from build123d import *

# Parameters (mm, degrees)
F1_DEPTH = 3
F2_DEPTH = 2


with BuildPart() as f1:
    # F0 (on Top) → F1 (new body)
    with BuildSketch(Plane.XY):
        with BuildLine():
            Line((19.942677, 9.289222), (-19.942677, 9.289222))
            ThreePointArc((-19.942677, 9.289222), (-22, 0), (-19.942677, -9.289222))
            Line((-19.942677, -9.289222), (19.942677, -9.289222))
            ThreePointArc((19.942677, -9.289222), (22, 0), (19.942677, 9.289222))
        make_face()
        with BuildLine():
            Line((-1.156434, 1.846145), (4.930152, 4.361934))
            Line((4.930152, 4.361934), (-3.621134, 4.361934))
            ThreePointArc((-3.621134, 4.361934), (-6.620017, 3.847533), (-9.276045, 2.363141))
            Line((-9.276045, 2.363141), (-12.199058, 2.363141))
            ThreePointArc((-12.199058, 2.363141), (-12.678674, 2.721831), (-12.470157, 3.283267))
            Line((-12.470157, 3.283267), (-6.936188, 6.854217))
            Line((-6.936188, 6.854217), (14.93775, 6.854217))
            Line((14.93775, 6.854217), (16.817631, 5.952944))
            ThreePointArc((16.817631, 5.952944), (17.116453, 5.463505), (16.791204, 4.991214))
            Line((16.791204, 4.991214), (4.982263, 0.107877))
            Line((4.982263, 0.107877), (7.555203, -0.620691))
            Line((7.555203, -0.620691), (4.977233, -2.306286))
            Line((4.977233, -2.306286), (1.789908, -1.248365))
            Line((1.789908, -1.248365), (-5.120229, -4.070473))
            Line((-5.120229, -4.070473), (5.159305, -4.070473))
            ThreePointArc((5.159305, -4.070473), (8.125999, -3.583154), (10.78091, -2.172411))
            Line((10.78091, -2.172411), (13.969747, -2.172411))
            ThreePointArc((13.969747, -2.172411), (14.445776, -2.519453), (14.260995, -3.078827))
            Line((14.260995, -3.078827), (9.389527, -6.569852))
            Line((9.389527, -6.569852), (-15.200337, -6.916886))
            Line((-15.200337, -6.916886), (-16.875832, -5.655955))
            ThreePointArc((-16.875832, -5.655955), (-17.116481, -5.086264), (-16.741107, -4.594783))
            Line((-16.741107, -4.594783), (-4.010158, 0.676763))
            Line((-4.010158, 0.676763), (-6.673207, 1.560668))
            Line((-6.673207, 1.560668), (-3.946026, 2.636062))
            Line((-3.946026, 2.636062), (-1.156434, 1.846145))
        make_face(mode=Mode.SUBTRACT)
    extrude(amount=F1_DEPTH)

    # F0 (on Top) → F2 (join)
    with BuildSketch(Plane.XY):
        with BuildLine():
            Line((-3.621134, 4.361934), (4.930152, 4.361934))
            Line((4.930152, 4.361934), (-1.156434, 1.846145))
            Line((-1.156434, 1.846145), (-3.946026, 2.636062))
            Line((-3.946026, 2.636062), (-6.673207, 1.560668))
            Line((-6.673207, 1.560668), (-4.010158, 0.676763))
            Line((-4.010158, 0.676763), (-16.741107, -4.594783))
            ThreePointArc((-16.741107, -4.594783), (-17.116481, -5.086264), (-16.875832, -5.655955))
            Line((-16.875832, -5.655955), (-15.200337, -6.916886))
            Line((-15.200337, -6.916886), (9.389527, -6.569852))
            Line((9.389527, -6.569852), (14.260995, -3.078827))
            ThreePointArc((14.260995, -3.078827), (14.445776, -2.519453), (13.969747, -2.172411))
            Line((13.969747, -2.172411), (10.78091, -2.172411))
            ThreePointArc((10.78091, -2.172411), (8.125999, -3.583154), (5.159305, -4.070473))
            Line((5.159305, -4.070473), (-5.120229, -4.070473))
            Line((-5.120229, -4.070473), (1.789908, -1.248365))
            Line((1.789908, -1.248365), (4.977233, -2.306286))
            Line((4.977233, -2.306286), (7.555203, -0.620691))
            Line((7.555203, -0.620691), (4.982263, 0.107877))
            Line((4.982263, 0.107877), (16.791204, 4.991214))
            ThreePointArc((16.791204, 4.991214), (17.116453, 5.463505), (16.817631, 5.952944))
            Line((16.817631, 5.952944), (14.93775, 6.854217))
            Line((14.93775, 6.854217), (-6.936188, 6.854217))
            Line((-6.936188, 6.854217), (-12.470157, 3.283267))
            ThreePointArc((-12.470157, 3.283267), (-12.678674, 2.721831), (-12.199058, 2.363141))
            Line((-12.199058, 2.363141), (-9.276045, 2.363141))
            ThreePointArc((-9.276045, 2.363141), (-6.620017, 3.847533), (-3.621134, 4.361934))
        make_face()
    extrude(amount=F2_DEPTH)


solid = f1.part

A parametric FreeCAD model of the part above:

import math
import FreeCAD as App
import Part
import Sketcher
Q = App.Units.Quantity

doc = App.newDocument("Part")
params = doc.addObject("Spreadsheet::Sheet", "Params")
for row, (alias, value) in enumerate([
    ("sketch1_radius", "0.5 mm"),
    ("sketch1_radius2", "0.5 mm"),
    ("pad1_length", "3 mm"),
    ("sketch2_radius", "0.5 mm"),
    ("pad2_length", "2 mm"),
], start=1):
    params.set(f"A{row}", alias)
    params.set(f"B{row}", "=" + value)
    params.setAlias(f"B{row}", alias)

body = doc.addObject("PartDesign::Body", "Body")

sketch1 = body.newObject("Sketcher::SketchObject", "Sketch")
sketch1.AttachmentSupport = (doc.getObject("XY_Plane"), [""])
sketch1.MapMode = "FlatFace"
sketch1.addGeometry([
    Part.LineSegment(App.Vector(19.942677, 9.289222, 0), App.Vector(-19.942677, 9.289222, 0)),
    Part.ArcOfCircle(Part.Circle(App.Vector(0.000003, 0, 0), App.Vector(0, 0, 1), 22.000003), math.radians(155.024081), math.radians(204.975919)),
    Part.LineSegment(App.Vector(-19.942677, -9.289222, 0), App.Vector(19.942677, -9.289222, 0)),
    Part.ArcOfCircle(Part.Circle(App.Vector(-0.000003, 0, 0), App.Vector(0, 0, 1), 22.000003), math.radians(-24.975919), math.radians(24.975919)),
    Part.LineSegment(App.Vector(-3.946026, 2.636062, 0), App.Vector(-1.156434, 1.846145, 0)),
    Part.LineSegment(App.Vector(-1.156434, 1.846145, 0), App.Vector(4.930152, 4.361934, 0)),
    Part.LineSegment(App.Vector(4.930152, 4.361934, 0), App.Vector(-3.621134, 4.361934, 0)),
    Part.ArcOfCircle(Part.Circle(App.Vector(-3.621133, -4.636797, 0), App.Vector(0, 0, 1), 8.998731), math.radians(90.000005), math.radians(128.93307)),
    Part.LineSegment(App.Vector(-9.276045, 2.363141, 0), App.Vector(-12.199058, 2.363141, 0)),
    Part.ArcOfCircle(Part.Circle(App.Vector(-12.199058, 2.863141, 0), App.Vector(0, 0, 1), 0.5), math.radians(122.833399), math.radians(269.999972)),
    Part.LineSegment(App.Vector(-12.470157, 3.283267, 0), App.Vector(-6.936188, 6.854217, 0)),
    Part.LineSegment(App.Vector(-6.936188, 6.854217, 0), App.Vector(14.93775, 6.854217, 0)),
    Part.LineSegment(App.Vector(14.93775, 6.854217, 0), App.Vector(16.817631, 5.952944, 0)),
    Part.ArcOfCircle(Part.Circle(App.Vector(16.589915, 5.477973, 0), App.Vector(0, 0, 1), 0.526737), math.radians(-67.533458), math.radians(64.385434)),
    Part.LineSegment(App.Vector(16.791204, 4.991214, 0), App.Vector(4.982263, 0.107877, 0)),
    Part.LineSegment(App.Vector(4.982263, 0.107877, 0), App.Vector(7.555203, -0.620691, 0)),
    Part.LineSegment(App.Vector(7.555203, -0.620691, 0), App.Vector(4.977233, -2.306286, 0)),
    Part.LineSegment(App.Vector(4.977233, -2.306286, 0), App.Vector(1.789908, -1.248365, 0)),
    Part.LineSegment(App.Vector(1.789908, -1.248365, 0), App.Vector(-5.120229, -4.070473, 0)),
    Part.LineSegment(App.Vector(-5.120229, -4.070473, 0), App.Vector(5.159305, -4.070473, 0)),
    Part.ArcOfCircle(Part.Circle(App.Vector(5.159306, 5.203477, 0), App.Vector(0, 0, 1), 9.27395), math.radians(-90.000009), math.radians(-52.686818)),
    Part.LineSegment(App.Vector(10.78091, -2.172411, 0), App.Vector(13.969747, -2.172411, 0)),
    Part.ArcOfCircle(Part.Circle(App.Vector(13.969747, -2.672411, 0), App.Vector(0, 0, 1), 0.5), math.radians(-54.373681), math.radians(90)),
    Part.LineSegment(App.Vector(14.260995, -3.078827, 0), App.Vector(9.389527, -6.569852, 0)),
    Part.LineSegment(App.Vector(9.389527, -6.569852, 0), App.Vector(-15.200337, -6.916886, 0)),
    Part.LineSegment(App.Vector(-15.200337, -6.916886, 0), App.Vector(-16.875832, -5.655955, 0)),
    Part.ArcOfCircle(Part.Circle(App.Vector(-16.505477, -5.163837, 0), App.Vector(0, 0, 1), 0.615909), math.radians(112.493155), math.radians(233.03587)),
    Part.LineSegment(App.Vector(-16.741107, -4.594783, 0), App.Vector(-4.010158, 0.676763, 0)),
    Part.LineSegment(App.Vector(-4.010158, 0.676763, 0), App.Vector(-6.673207, 1.560668, 0)),
    Part.LineSegment(App.Vector(-6.673207, 1.560668, 0), App.Vector(-3.946026, 2.636062, 0)),
], False)
sketch1.addConstraint([
    Sketcher.Constraint("Coincident", 0, 2, 1, 1),
    Sketcher.Constraint("Coincident", 1, 2, 2, 1),
    Sketcher.Constraint("Coincident", 2, 2, 3, 1),
    Sketcher.Constraint("Coincident", 3, 2, 0, 1),
    Sketcher.Constraint("Coincident", 4, 2, 5, 1),
    Sketcher.Constraint("Coincident", 5, 2, 6, 1),
    Sketcher.Constraint("Coincident", 6, 2, 7, 1),
    Sketcher.Constraint("Coincident", 7, 2, 8, 1),
    Sketcher.Constraint("Coincident", 8, 2, 9, 2),
    Sketcher.Constraint("Coincident", 9, 1, 10, 1),
    Sketcher.Constraint("Coincident", 10, 2, 11, 1),
    Sketcher.Constraint("Coincident", 11, 2, 12, 1),
    Sketcher.Constraint("Coincident", 12, 2, 13, 2),
    Sketcher.Constraint("Coincident", 13, 1, 14, 1),
    Sketcher.Constraint("Coincident", 14, 2, 15, 1),
    Sketcher.Constraint("Coincident", 15, 2, 16, 1),
    Sketcher.Constraint("Coincident", 16, 2, 17, 1),
    Sketcher.Constraint("Coincident", 17, 2, 18, 1),
    Sketcher.Constraint("Coincident", 18, 2, 19, 1),
    Sketcher.Constraint("Coincident", 19, 2, 20, 1),
    Sketcher.Constraint("Coincident", 20, 2, 21, 1),
    Sketcher.Constraint("Coincident", 21, 2, 22, 2),
    Sketcher.Constraint("Coincident", 22, 1, 23, 1),
    Sketcher.Constraint("Coincident", 23, 2, 24, 1),
    Sketcher.Constraint("Coincident", 24, 2, 25, 1),
    Sketcher.Constraint("Coincident", 25, 2, 26, 2),
    Sketcher.Constraint("Coincident", 26, 1, 27, 1),
    Sketcher.Constraint("Coincident", 27, 2, 28, 1),
    Sketcher.Constraint("Coincident", 28, 2, 29, 1),
    Sketcher.Constraint("Coincident", 29, 2, 4, 1),
    Sketcher.Constraint("Horizontal", 0),
    Sketcher.Constraint("Horizontal", 2),
    Sketcher.Constraint("Horizontal", 6),
    Sketcher.Constraint("Horizontal", 8),
    Sketcher.Constraint("Horizontal", 11),
    Sketcher.Constraint("Horizontal", 19),
    Sketcher.Constraint("Horizontal", 21),
    Sketcher.Constraint("Coincident", 1, 3, -1, 1),
    Sketcher.Constraint("Coincident", 3, 3, -1, 1),
    Sketcher.Constraint("Radius", 9, Q("0.5 mm")),
    Sketcher.Constraint("Radius", 22, Q("0.5 mm")),
    Sketcher.Constraint("Radius", 7, Q("8.998731 mm")),
    Sketcher.Constraint("Radius", 20, Q("9.27395 mm")),
    Sketcher.Constraint("Radius", 26, Q("0.615909 mm")),
    Sketcher.Constraint("Radius", 1, Q("22.000003 mm")),
    Sketcher.Constraint("Radius", 3, Q("22.000003 mm")),
    Sketcher.Constraint("Radius", 13, Q("0.526737 mm")),
    Sketcher.Constraint("Distance", 18, Q("7.4642 mm")),
    Sketcher.Constraint("Distance", 23, Q("5.993201 mm")),
    Sketcher.Constraint("DistanceX", 0, 2, 26, 3, Q("3.4372 mm")),
    Sketcher.Constraint("DistanceX", 1, 2, 26, 3, Q("3.4372 mm")),
    Sketcher.Constraint("DistanceY", 2, 2, 20, 3, Q("14.492699 mm")),
    Sketcher.Constraint("DistanceX", 7, 3, 4, 2, Q("2.464699 mm")),
    Sketcher.Constraint("DistanceX", 6, 2, 4, 2, Q("2.4647 mm")),
    Sketcher.Constraint("DistanceX", 9, 1, 9, 3, Q("0.271099 mm")),
    Sketcher.Constraint("DistanceX", 9, 1, 8, 2, Q("0.271099 mm")),
    Sketcher.Constraint("DistanceY", 14, 2, 20, 3, Q("5.0956 mm")),
    Sketcher.Constraint("DistanceX", 1, 3, 15, 2, Q("7.5552 mm")),
    Sketcher.Constraint("DistanceY", 27, 2, 29, 2, Q("1.959299 mm")),
    Sketcher.Constraint("Distance", 17, Q("3.358309 mm")),
    Sketcher.Constraint("Distance", 29, Q("2.931551 mm")),
    Sketcher.Constraint("DistanceX", 0, 2, 0, 1, Q("39.885354 mm")),
    Sketcher.Constraint("DistanceX", 6, 2, 6, 1, Q("8.551286 mm")),
    Sketcher.Constraint("DistanceX", 8, 2, 8, 1, Q("2.923013 mm")),
    Sketcher.Constraint("DistanceX", 11, 1, 11, 2, Q("21.873938 mm")),
    Sketcher.Constraint("DistanceX", 19, 1, 19, 2, Q("10.279534 mm")),
    Sketcher.Constraint("DistanceX", 21, 1, 21, 2, Q("3.188837 mm")),
    Sketcher.Constraint("DistanceY", -1, 1, 9, 3, Q("2.863141 mm")),
    Sketcher.Constraint("DistanceY", 22, 3, -1, 1, Q("2.672411 mm")),
    Sketcher.Constraint("DistanceX", -1, 1, 5, 2, Q("4.930152 mm")),
    Sketcher.Constraint("DistanceX", 8, 2, -1, 1, Q("12.199058 mm")),
    Sketcher.Constraint("DistanceX", -1, 1, 11, 2, Q("14.93775 mm")),
    Sketcher.Constraint("DistanceX", -1, 1, 12, 2, Q("16.817631 mm")),
    Sketcher.Constraint("DistanceY", 15, 2, -1, 1, Q("0.620691 mm")),
    Sketcher.Constraint("DistanceX", -1, 1, 17, 2, Q("1.789908 mm")),
    Sketcher.Constraint("DistanceX", 18, 2, -1, 1, Q("5.120229 mm")),
    Sketcher.Constraint("DistanceX", -1, 1, 20, 2, Q("10.78091 mm")),
    Sketcher.Constraint("DistanceX", 25, 2, -1, 1, Q("16.875832 mm")),
    Sketcher.Constraint("DistanceY", -1, 1, 29, 2, Q("2.636062 mm")),
    Sketcher.Constraint("DistanceX", 1, 3, 13, 3, Q("16.589912 mm")),
    Sketcher.Constraint("DistanceY", 7, 3, 13, 3, Q("10.11477 mm")),
    Sketcher.Constraint("DistanceX", 20, 3, 22, 3, Q("8.810441 mm")),
    Sketcher.Constraint("DistanceY", 26, 3, 7, 3, Q("0.52704 mm")),
    Sketcher.Constraint("DistanceY", 7, 3, 4, 2, Q("6.482942 mm")),
    Sketcher.Constraint("DistanceY", 9, 1, 10, 2, Q("3.57095 mm")),
    Sketcher.Constraint("DistanceX", 13, 3, 13, 1, Q("0.201289 mm")),
    Sketcher.Constraint("DistanceX", 5, 2, 14, 2, Q("0.052111 mm")),
    Sketcher.Constraint("DistanceX", 16, 2, 14, 2, Q("0.00503 mm")),
    Sketcher.Constraint("DistanceX", 15, 2, 22, 1, Q("6.705792 mm")),
    Sketcher.Constraint("DistanceY", 23, 2, 20, 2, Q("4.397441 mm")),
    Sketcher.Constraint("DistanceX", 26, 3, 24, 2, Q("1.30514 mm")),
    Sketcher.Constraint("DistanceY", 24, 2, 26, 3, Q("1.753049 mm")),
    Sketcher.Constraint("DistanceX", 26, 1, 26, 3, Q("0.23563 mm")),
    Sketcher.Constraint("DistanceX", 27, 2, 1, 3, Q("4.010161 mm")),
    Sketcher.Constraint("DistanceX", 7, 2, 28, 2, Q("2.602838 mm")),
    Sketcher.Constraint("DistanceY", 28, 2, 10, 2, Q("5.293549 mm")),
])
sketch1.setExpression("Constraints[39]", "Params.sketch1_radius")
sketch1.setExpression("Constraints[40]", "Params.sketch1_radius2")
pad1 = body.newObject("PartDesign::Pad", "Pad")
pad1.Profile = sketch1
pad1.setExpression("Length", "Params.pad1_length")

sketch2 = body.newObject("Sketcher::SketchObject", "Sketch001")
sketch2.AttachmentSupport = (doc.getObject("XY_Plane"), [""])
sketch2.MapMode = "FlatFace"
sketch2.addGeometry([
    Part.LineSegment(App.Vector(-3.621134, 4.361934, 0), App.Vector(4.930152, 4.361934, 0)),
    Part.LineSegment(App.Vector(4.930152, 4.361934, 0), App.Vector(-1.156434, 1.846145, 0)),
    Part.LineSegment(App.Vector(-1.156434, 1.846145, 0), App.Vector(-3.946026, 2.636062, 0)),
    Part.LineSegment(App.Vector(-3.946026, 2.636062, 0), App.Vector(-6.673207, 1.560668, 0)),
    Part.LineSegment(App.Vector(-6.673207, 1.560668, 0), App.Vector(-4.010158, 0.676763, 0)),
    Part.LineSegment(App.Vector(-4.010158, 0.676763, 0), App.Vector(-16.741107, -4.594783, 0)),
    Part.ArcOfCircle(Part.Circle(App.Vector(-16.505477, -5.163837, 0), App.Vector(0, 0, 1), 0.615909), math.radians(112.493155), math.radians(233.03587)),
    Part.LineSegment(App.Vector(-16.875832, -5.655955, 0), App.Vector(-15.200337, -6.916886, 0)),
    Part.LineSegment(App.Vector(-15.200337, -6.916886, 0), App.Vector(9.389527, -6.569852, 0)),
    Part.LineSegment(App.Vector(9.389527, -6.569852, 0), App.Vector(14.260995, -3.078827, 0)),
    Part.ArcOfCircle(Part.Circle(App.Vector(13.969747, -2.672411, 0), App.Vector(0, 0, 1), 0.5), math.radians(-54.373681), math.radians(90)),
    Part.LineSegment(App.Vector(13.969747, -2.172411, 0), App.Vector(10.78091, -2.172411, 0)),
    Part.ArcOfCircle(Part.Circle(App.Vector(5.159306, 5.203477, 0), App.Vector(0, 0, 1), 9.27395), math.radians(-90.000009), math.radians(-52.686818)),
    Part.LineSegment(App.Vector(5.159305, -4.070473, 0), App.Vector(-5.120229, -4.070473, 0)),
    Part.LineSegment(App.Vector(-5.120229, -4.070473, 0), App.Vector(1.789908, -1.248365, 0)),
    Part.LineSegment(App.Vector(1.789908, -1.248365, 0), App.Vector(4.977233, -2.306286, 0)),
    Part.LineSegment(App.Vector(4.977233, -2.306286, 0), App.Vector(7.555203, -0.620691, 0)),
    Part.LineSegment(App.Vector(7.555203, -0.620691, 0), App.Vector(4.982263, 0.107877, 0)),
    Part.LineSegment(App.Vector(4.982263, 0.107877, 0), App.Vector(16.791204, 4.991214, 0)),
    Part.ArcOfCircle(Part.Circle(App.Vector(16.589915, 5.477973, 0), App.Vector(0, 0, 1), 0.526737), math.radians(-67.533458), math.radians(64.385434)),
    Part.LineSegment(App.Vector(16.817631, 5.952944, 0), App.Vector(14.93775, 6.854217, 0)),
    Part.LineSegment(App.Vector(14.93775, 6.854217, 0), App.Vector(-6.936188, 6.854217, 0)),
    Part.LineSegment(App.Vector(-6.936188, 6.854217, 0), App.Vector(-12.470157, 3.283267, 0)),
    Part.ArcOfCircle(Part.Circle(App.Vector(-12.199058, 2.863141, 0), App.Vector(0, 0, 1), 0.5), math.radians(122.833399), math.radians(269.999972)),
    Part.LineSegment(App.Vector(-12.199058, 2.363141, 0), App.Vector(-9.276045, 2.363141, 0)),
    Part.ArcOfCircle(Part.Circle(App.Vector(-3.621133, -4.636797, 0), App.Vector(0, 0, 1), 8.998731), math.radians(90.000005), math.radians(128.93307)),
], False)
sketch2.addConstraint([
    Sketcher.Constraint("Coincident", 0, 2, 1, 1),
    Sketcher.Constraint("Coincident", 1, 2, 2, 1),
    Sketcher.Constraint("Coincident", 2, 2, 3, 1),
    Sketcher.Constraint("Coincident", 3, 2, 4, 1),
    Sketcher.Constraint("Coincident", 4, 2, 5, 1),
    Sketcher.Constraint("Tangent", 5, 2, 6, 1),
    Sketcher.Constraint("Tangent", 6, 2, 7, 1),
    Sketcher.Constraint("Coincident", 7, 2, 8, 1),
    Sketcher.Constraint("Coincident", 8, 2, 9, 1),
    Sketcher.Constraint("Tangent", 9, 2, 10, 1),
    Sketcher.Constraint("Tangent", 10, 2, 11, 1),
    Sketcher.Constraint("Coincident", 11, 2, 12, 2),
    Sketcher.Constraint("Tangent", 12, 1, 13, 1),
    Sketcher.Constraint("Coincident", 13, 2, 14, 1),
    Sketcher.Constraint("Coincident", 14, 2, 15, 1),
    Sketcher.Constraint("Coincident", 15, 2, 16, 1),
    Sketcher.Constraint("Coincident", 16, 2, 17, 1),
    Sketcher.Constraint("Coincident", 17, 2, 18, 1),
    Sketcher.Constraint("Tangent", 18, 2, 19, 1),
    Sketcher.Constraint("Tangent", 19, 2, 20, 1),
    Sketcher.Constraint("Coincident", 20, 2, 21, 1),
    Sketcher.Constraint("Coincident", 21, 2, 22, 1),
    Sketcher.Constraint("Coincident", 22, 2, 23, 1),
    Sketcher.Constraint("Tangent", 23, 2, 24, 1),
    Sketcher.Constraint("Coincident", 24, 2, 25, 2),
    Sketcher.Constraint("Tangent", 25, 1, 0, 1),
    Sketcher.Constraint("Horizontal", 0),
    Sketcher.Constraint("Horizontal", 11),
    Sketcher.Constraint("Horizontal", 13),
    Sketcher.Constraint("Horizontal", 21),
    Sketcher.Constraint("Horizontal", 24),
    Sketcher.Constraint("Equal", 10, 23),
    Sketcher.Constraint("Parallel", 4, 15),
    Sketcher.Constraint("Parallel", 2, 17),
    Sketcher.Constraint("Radius", 10, Q("0.5 mm")),
    Sketcher.Constraint("Radius", 6, Q("0.615909 mm")),
    Sketcher.Constraint("Radius", 12, Q("9.27395 mm")),
    Sketcher.Constraint("Radius", 25, Q("8.998731 mm")),
    Sketcher.Constraint("DistanceX", 22, 2, 4, 2, Q("8.459999 mm")),
    Sketcher.Constraint("Radius", 19, Q("0.526737 mm")),
    Sketcher.Constraint("Distance", 9, Q("5.993201 mm")),
    Sketcher.Constraint("Distance", 14, Q("7.4642 mm")),
    Sketcher.Constraint("DistanceX", 25, 3, 1, 2, Q("2.464699 mm")),
    Sketcher.Constraint("DistanceY", 4, 2, 2, 2, Q("1.959299 mm")),
    Sketcher.Constraint("DistanceX", 23, 3, 4, 2, Q("8.1889 mm")),
    Sketcher.Constraint("DistanceX", 5, 2, 3, 2, Q("10.0679 mm")),
    Sketcher.Constraint("DistanceX", 6, 2, 25, 3, Q("13.254699 mm")),
    Sketcher.Constraint("DistanceY", 9, 2, 19, 3, Q("8.5568 mm")),
    Sketcher.Constraint("DistanceY", 14, 2, 0, 2, Q("5.610299 mm")),
    Sketcher.Constraint("DistanceY", 3, 2, 22, 2, Q("1.722599 mm")),
    Sketcher.Constraint("Distance", 3, Q("2.931551 mm")),
    Sketcher.Constraint("Distance", 15, Q("3.358309 mm")),
    Sketcher.Constraint("DistanceX", 0, 1, 0, 2, Q("8.551286 mm")),
    Sketcher.Constraint("DistanceX", 11, 2, 11, 1, Q("3.188837 mm")),
    Sketcher.Constraint("DistanceX", 13, 2, 13, 1, Q("10.279534 mm")),
    Sketcher.Constraint("DistanceX", 21, 2, 21, 1, Q("21.873938 mm")),
    Sketcher.Constraint("DistanceX", 24, 1, 24, 2, Q("2.923013 mm")),
    Sketcher.Constraint("DistanceY", 10, 3, -1, 1, Q("2.672411 mm")),
    Sketcher.Constraint("DistanceY", -1, 1, 23, 3, Q("2.863141 mm")),
    Sketcher.Constraint("DistanceX", -1, 1, 0, 2, Q("4.930152 mm")),
    Sketcher.Constraint("DistanceY", -1, 1, 2, 2, Q("2.636062 mm")),
    Sketcher.Constraint("DistanceX", -1, 1, 11, 2, Q("10.78091 mm")),
    Sketcher.Constraint("DistanceX", 13, 2, -1, 1, Q("5.120229 mm")),
    Sketcher.Constraint("DistanceX", -1, 1, 14, 2, Q("1.789908 mm")),
    Sketcher.Constraint("DistanceY", 16, 2, -1, 1, Q("0.620691 mm")),
    Sketcher.Constraint("DistanceX", -1, 1, 19, 2, Q("16.817631 mm")),
    Sketcher.Constraint("DistanceX", -1, 1, 20, 2, Q("14.93775 mm")),
    Sketcher.Constraint("DistanceX", 12, 3, 19, 3, Q("11.430608 mm")),
    Sketcher.Constraint("DistanceX", 6, 3, 19, 3, Q("33.095392 mm")),
    Sketcher.Constraint("DistanceY", 6, 3, 19, 3, Q("10.64181 mm")),
    Sketcher.Constraint("DistanceY", 23, 3, 19, 3, Q("2.614832 mm")),
    Sketcher.Constraint("DistanceY", 1, 2, 0, 2, Q("2.515789 mm")),
    Sketcher.Constraint("DistanceY", 7, 2, 6, 2, Q("1.260931 mm")),
    Sketcher.Constraint("DistanceX", 15, 2, 16, 2, Q("2.57797 mm")),
    Sketcher.Constraint("DistanceX", 15, 2, 17, 2, Q("0.00503 mm")),
])
sketch2.setExpression("Constraints[34]", "Params.sketch2_radius")
pad2 = body.newObject("PartDesign::Pad", "Pad001")
pad2.Profile = sketch2
pad2.setExpression("Length", "Params.pad2_length")

doc.recompute()
